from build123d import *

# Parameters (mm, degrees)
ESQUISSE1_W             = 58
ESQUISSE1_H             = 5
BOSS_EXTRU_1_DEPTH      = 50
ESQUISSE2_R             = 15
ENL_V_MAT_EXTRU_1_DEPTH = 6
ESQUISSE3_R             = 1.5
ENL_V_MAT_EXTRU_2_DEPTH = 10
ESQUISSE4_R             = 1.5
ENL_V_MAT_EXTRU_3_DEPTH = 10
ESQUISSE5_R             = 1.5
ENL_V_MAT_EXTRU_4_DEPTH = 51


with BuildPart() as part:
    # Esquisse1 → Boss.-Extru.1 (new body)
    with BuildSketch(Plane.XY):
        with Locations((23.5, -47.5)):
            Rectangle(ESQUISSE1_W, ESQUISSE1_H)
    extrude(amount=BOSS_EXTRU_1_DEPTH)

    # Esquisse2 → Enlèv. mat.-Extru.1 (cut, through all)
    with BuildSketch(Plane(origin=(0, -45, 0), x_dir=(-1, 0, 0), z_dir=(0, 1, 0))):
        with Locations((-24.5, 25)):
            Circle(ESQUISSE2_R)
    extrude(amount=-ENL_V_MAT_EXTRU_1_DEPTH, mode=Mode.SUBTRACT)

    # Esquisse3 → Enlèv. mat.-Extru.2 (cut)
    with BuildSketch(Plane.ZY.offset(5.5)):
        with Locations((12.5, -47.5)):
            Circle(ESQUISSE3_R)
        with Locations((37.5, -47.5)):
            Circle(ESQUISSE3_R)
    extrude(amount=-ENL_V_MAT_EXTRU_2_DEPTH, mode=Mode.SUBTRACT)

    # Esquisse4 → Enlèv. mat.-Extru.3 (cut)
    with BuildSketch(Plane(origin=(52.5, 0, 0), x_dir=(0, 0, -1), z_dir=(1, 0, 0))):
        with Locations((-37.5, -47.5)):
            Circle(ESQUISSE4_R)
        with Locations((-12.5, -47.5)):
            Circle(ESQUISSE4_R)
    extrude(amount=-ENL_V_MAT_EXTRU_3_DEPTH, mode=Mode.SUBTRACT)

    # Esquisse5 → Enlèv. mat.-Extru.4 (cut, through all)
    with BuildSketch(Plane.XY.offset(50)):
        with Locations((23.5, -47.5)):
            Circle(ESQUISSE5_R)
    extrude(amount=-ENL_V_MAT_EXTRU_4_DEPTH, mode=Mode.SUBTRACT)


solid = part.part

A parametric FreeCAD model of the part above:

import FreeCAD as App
import Part
import Sketcher


def add_polygon(sketch, points):
    """Adds a closed chain of lines whose ends are joined by coincident constraints."""
    first, n = sketch.GeometryCount, len(points)
    for a, b in zip(points, points[1:] + points[:1]):
        sketch.addGeometry(Part.LineSegment(App.Vector(*a, 0), App.Vector(*b, 0)), False)
    for i in range(n):
        sketch.addConstraint(Sketcher.Constraint("Coincident", first + i, 2, first + (i + 1) % n, 1))

doc = App.newDocument("Part")
params = doc.addObject("Spreadsheet::Sheet", "Params")
for row, (alias, value) in enumerate([
    ("sketch1_width", "58 mm"),
    ("sketch1_height", "5 mm"),
    ("pad1_length", "50 mm"),
    ("sketch2_diameter", "30 mm"),
    ("sketch3_diameter", "3 mm"),
    ("pocket2_length", "10 mm"),
    ("sketch4_diameter", "3 mm"),
    ("pocket3_length", "10 mm"),
    ("sketch5_diameter", "3 mm"),
], start=1):
    params.set(f"A{row}", alias)
    params.set(f"B{row}", "=" + value)
    params.setAlias(f"B{row}", alias)

body = doc.addObject("PartDesign::Body", "Body")

# Sketch on XY plane
sketch1 = body.newObject("Sketcher::SketchObject", "Sketch")
sketch1.AttachmentSupport = (doc.getObject("XY_Plane"), [""])
sketch1.MapMode = "FlatFace"
add_polygon(sketch1, [(-6, -45), (-6, -50), (52, -50), (52, -45)])  # lines 0-3
sketch1.addConstraint(Sketcher.Constraint("Vertical", 0))
sketch1.addConstraint(Sketcher.Constraint("Horizontal", 1))
sketch1.addConstraint(Sketcher.Constraint("Vertical", 2))
sketch1.addConstraint(Sketcher.Constraint("Horizontal", 3))
sketch1.addConstraint(Sketcher.Constraint("DistanceX", 1, 1, 1, 2, 58.0))
sketch1.addConstraint(Sketcher.Constraint("DistanceY", 0, 2, 0, 1, 5.0))
sketch1.addConstraint(Sketcher.Constraint("DistanceY", 0, 2, -1, 1, 50.0))
sketch1.addConstraint(Sketcher.Constraint("DistanceX", 0, 2, -1, 1, 5.5))
sketch1.setExpression("Constraints[8]", "Params.sketch1_width")
sketch1.setExpression("Constraints[9]", "Params.sketch1_height")
pad1 = body.newObject("PartDesign::Pad", "Pad")
pad1.Profile = sketch1
pad1.setExpression("Length", "Params.pad1_length")

# Sketch on XZ plane
sketch2 = body.newObject("Sketcher::SketchObject", "Sketch001")
sketch2.AttachmentSupport = (doc.getObject("XZ_Plane"), [""])
sketch2.MapMode = "FlatFace"
sketch2.AttachmentOffset = App.Placement(App.Vector(0, 0, 45), App.Rotation())
sketch2.addGeometry(Part.Circle(App.Vector(24, 25, 0), App.Vector(0, 0, 1), 15), False)
sketch2.addConstraint(Sketcher.Constraint("Diameter", 0, 30.0))
sketch2.addConstraint(Sketcher.Constraint("DistanceY", -1, 1, 0, 3, 25.0))
sketch2.addConstraint(Sketcher.Constraint("DistanceX", -1, 1, 0, 3, 24.5))
sketch2.setExpression("Constraints[0]", "Params.sketch2_diameter")
pocket1 = body.newObject("PartDesign::Pocket", "Pocket")
pocket1.Profile = sketch2
pocket1.Type = "ThroughAll"
pocket1.Reversed = True

# Sketch on YZ plane
sketch3 = body.newObject("Sketcher::SketchObject", "Sketch002")
sketch3.AttachmentSupport = (doc.getObject("YZ_Plane"), [""])
sketch3.MapMode = "FlatFace"
sketch3.AttachmentOffset = App.Placement(App.Vector(0, 0, -5.5), App.Rotation())
sketch3.addGeometry(Part.Circle(App.Vector(-47.5, 12.5, 0), App.Vector(0, 0, 1), 1.5), False)
sketch3.addGeometry(Part.Circle(App.Vector(-47.5, 37.5, 0), App.Vector(0, 0, 1), 1.5), False)
sketch3.addConstraint(Sketcher.Constraint("Equal", 0, 1))
sketch3.addConstraint(Sketcher.Constraint("Vertical", 0, 3, 1, 3))
sketch3.addConstraint(Sketcher.Constraint("Diameter", 0, 3.0))
sketch3.addConstraint(Sketcher.Constraint("DistanceY", 0, 3, 1, 3, 25.0))
sketch3.addConstraint(Sketcher.Constraint("DistanceX", 0, 3, -1, 1, 47.5))
sketch3.addConstraint(Sketcher.Constraint("DistanceY", -1, 1, 0, 3, 12.5))
sketch3.setExpression("Constraints[2]", "Params.sketch3_diameter")
pocket2 = body.newObject("PartDesign::Pocket", "Pocket001")
pocket2.Profile = sketch3
pocket2.setExpression("Length", "Params.pocket2_length")
pocket2.Reversed = True

# Sketch on YZ plane
sketch4 = body.newObject("Sketcher::SketchObject", "Sketch003")
sketch4.AttachmentSupport = (doc.getObject("YZ_Plane"), [""])
sketch4.MapMode = "FlatFace"
sketch4.AttachmentOffset = App.Placement(App.Vector(0, 0, 52.5), App.Rotation())
sketch4.addGeometry(Part.Circle(App.Vector(-47.5, 37.5, 0), App.Vector(0, 0, 1), 1.5), False)
sketch4.addGeometry(Part.Circle(App.Vector(-47.5, 12.5, 0), App.Vector(0, 0, 1), 1.5), False)
sketch4.addConstraint(Sketcher.Constraint("Equal", 0, 1))
sketch4.addConstraint(Sketcher.Constraint("Vertical", 0, 3, 1, 3))
sketch4.addConstraint(Sketcher.Constraint("Diameter", 0, 3.0))
sketch4.addConstraint(Sketcher.Constraint("DistanceY", 1, 3, 0, 3, 25.0))
sketch4.addConstraint(Sketcher.Constraint("DistanceX", 0, 3, -1, 1, 47.5))
sketch4.addConstraint(Sketcher.Constraint("DistanceY", -1, 1, 0, 3, 37.5))
sketch4.setExpression("Constraints[2]", "Params.sketch4_diameter")
pocket3 = body.newObject("PartDesign::Pocket", "Pocket002")
pocket3.Profile = sketch4
pocket3.setExpression("Length", "Params.pocket3_length")

# Sketch on XY plane
sketch5 = body.newObject("Sketcher::SketchObject", "Sketch004")
sketch5.AttachmentSupport = (doc.getObject("XY_Plane"), [""])
sketch5.MapMode = "FlatFace"
sketch5.AttachmentOffset = App.Placement(App.Vector(0, 0, 50), App.Rotation())
sketch5.addGeometry(Part.Circle(App.Vector(23.5, -47.5, 0), App.Vector(0, 0, 1), 1.5), False)
sketch5.addConstraint(Sketcher.Constraint("Diameter", 0, 3.0))
sketch5.addConstraint(Sketcher.Constraint("DistanceX", -1, 1, 0, 3, 23.5))
sketch5.addConstraint(Sketcher.Constraint("DistanceY", 0, 3, -1, 1, 47.5))
sketch5.setExpression("Constraints[0]", "Params.sketch5_diameter")
pocket4 = body.newObject("PartDesign::Pocket", "Pocket003")
pocket4.Profile = sketch5
pocket4.Type = "ThroughAll"

doc.recompute()
